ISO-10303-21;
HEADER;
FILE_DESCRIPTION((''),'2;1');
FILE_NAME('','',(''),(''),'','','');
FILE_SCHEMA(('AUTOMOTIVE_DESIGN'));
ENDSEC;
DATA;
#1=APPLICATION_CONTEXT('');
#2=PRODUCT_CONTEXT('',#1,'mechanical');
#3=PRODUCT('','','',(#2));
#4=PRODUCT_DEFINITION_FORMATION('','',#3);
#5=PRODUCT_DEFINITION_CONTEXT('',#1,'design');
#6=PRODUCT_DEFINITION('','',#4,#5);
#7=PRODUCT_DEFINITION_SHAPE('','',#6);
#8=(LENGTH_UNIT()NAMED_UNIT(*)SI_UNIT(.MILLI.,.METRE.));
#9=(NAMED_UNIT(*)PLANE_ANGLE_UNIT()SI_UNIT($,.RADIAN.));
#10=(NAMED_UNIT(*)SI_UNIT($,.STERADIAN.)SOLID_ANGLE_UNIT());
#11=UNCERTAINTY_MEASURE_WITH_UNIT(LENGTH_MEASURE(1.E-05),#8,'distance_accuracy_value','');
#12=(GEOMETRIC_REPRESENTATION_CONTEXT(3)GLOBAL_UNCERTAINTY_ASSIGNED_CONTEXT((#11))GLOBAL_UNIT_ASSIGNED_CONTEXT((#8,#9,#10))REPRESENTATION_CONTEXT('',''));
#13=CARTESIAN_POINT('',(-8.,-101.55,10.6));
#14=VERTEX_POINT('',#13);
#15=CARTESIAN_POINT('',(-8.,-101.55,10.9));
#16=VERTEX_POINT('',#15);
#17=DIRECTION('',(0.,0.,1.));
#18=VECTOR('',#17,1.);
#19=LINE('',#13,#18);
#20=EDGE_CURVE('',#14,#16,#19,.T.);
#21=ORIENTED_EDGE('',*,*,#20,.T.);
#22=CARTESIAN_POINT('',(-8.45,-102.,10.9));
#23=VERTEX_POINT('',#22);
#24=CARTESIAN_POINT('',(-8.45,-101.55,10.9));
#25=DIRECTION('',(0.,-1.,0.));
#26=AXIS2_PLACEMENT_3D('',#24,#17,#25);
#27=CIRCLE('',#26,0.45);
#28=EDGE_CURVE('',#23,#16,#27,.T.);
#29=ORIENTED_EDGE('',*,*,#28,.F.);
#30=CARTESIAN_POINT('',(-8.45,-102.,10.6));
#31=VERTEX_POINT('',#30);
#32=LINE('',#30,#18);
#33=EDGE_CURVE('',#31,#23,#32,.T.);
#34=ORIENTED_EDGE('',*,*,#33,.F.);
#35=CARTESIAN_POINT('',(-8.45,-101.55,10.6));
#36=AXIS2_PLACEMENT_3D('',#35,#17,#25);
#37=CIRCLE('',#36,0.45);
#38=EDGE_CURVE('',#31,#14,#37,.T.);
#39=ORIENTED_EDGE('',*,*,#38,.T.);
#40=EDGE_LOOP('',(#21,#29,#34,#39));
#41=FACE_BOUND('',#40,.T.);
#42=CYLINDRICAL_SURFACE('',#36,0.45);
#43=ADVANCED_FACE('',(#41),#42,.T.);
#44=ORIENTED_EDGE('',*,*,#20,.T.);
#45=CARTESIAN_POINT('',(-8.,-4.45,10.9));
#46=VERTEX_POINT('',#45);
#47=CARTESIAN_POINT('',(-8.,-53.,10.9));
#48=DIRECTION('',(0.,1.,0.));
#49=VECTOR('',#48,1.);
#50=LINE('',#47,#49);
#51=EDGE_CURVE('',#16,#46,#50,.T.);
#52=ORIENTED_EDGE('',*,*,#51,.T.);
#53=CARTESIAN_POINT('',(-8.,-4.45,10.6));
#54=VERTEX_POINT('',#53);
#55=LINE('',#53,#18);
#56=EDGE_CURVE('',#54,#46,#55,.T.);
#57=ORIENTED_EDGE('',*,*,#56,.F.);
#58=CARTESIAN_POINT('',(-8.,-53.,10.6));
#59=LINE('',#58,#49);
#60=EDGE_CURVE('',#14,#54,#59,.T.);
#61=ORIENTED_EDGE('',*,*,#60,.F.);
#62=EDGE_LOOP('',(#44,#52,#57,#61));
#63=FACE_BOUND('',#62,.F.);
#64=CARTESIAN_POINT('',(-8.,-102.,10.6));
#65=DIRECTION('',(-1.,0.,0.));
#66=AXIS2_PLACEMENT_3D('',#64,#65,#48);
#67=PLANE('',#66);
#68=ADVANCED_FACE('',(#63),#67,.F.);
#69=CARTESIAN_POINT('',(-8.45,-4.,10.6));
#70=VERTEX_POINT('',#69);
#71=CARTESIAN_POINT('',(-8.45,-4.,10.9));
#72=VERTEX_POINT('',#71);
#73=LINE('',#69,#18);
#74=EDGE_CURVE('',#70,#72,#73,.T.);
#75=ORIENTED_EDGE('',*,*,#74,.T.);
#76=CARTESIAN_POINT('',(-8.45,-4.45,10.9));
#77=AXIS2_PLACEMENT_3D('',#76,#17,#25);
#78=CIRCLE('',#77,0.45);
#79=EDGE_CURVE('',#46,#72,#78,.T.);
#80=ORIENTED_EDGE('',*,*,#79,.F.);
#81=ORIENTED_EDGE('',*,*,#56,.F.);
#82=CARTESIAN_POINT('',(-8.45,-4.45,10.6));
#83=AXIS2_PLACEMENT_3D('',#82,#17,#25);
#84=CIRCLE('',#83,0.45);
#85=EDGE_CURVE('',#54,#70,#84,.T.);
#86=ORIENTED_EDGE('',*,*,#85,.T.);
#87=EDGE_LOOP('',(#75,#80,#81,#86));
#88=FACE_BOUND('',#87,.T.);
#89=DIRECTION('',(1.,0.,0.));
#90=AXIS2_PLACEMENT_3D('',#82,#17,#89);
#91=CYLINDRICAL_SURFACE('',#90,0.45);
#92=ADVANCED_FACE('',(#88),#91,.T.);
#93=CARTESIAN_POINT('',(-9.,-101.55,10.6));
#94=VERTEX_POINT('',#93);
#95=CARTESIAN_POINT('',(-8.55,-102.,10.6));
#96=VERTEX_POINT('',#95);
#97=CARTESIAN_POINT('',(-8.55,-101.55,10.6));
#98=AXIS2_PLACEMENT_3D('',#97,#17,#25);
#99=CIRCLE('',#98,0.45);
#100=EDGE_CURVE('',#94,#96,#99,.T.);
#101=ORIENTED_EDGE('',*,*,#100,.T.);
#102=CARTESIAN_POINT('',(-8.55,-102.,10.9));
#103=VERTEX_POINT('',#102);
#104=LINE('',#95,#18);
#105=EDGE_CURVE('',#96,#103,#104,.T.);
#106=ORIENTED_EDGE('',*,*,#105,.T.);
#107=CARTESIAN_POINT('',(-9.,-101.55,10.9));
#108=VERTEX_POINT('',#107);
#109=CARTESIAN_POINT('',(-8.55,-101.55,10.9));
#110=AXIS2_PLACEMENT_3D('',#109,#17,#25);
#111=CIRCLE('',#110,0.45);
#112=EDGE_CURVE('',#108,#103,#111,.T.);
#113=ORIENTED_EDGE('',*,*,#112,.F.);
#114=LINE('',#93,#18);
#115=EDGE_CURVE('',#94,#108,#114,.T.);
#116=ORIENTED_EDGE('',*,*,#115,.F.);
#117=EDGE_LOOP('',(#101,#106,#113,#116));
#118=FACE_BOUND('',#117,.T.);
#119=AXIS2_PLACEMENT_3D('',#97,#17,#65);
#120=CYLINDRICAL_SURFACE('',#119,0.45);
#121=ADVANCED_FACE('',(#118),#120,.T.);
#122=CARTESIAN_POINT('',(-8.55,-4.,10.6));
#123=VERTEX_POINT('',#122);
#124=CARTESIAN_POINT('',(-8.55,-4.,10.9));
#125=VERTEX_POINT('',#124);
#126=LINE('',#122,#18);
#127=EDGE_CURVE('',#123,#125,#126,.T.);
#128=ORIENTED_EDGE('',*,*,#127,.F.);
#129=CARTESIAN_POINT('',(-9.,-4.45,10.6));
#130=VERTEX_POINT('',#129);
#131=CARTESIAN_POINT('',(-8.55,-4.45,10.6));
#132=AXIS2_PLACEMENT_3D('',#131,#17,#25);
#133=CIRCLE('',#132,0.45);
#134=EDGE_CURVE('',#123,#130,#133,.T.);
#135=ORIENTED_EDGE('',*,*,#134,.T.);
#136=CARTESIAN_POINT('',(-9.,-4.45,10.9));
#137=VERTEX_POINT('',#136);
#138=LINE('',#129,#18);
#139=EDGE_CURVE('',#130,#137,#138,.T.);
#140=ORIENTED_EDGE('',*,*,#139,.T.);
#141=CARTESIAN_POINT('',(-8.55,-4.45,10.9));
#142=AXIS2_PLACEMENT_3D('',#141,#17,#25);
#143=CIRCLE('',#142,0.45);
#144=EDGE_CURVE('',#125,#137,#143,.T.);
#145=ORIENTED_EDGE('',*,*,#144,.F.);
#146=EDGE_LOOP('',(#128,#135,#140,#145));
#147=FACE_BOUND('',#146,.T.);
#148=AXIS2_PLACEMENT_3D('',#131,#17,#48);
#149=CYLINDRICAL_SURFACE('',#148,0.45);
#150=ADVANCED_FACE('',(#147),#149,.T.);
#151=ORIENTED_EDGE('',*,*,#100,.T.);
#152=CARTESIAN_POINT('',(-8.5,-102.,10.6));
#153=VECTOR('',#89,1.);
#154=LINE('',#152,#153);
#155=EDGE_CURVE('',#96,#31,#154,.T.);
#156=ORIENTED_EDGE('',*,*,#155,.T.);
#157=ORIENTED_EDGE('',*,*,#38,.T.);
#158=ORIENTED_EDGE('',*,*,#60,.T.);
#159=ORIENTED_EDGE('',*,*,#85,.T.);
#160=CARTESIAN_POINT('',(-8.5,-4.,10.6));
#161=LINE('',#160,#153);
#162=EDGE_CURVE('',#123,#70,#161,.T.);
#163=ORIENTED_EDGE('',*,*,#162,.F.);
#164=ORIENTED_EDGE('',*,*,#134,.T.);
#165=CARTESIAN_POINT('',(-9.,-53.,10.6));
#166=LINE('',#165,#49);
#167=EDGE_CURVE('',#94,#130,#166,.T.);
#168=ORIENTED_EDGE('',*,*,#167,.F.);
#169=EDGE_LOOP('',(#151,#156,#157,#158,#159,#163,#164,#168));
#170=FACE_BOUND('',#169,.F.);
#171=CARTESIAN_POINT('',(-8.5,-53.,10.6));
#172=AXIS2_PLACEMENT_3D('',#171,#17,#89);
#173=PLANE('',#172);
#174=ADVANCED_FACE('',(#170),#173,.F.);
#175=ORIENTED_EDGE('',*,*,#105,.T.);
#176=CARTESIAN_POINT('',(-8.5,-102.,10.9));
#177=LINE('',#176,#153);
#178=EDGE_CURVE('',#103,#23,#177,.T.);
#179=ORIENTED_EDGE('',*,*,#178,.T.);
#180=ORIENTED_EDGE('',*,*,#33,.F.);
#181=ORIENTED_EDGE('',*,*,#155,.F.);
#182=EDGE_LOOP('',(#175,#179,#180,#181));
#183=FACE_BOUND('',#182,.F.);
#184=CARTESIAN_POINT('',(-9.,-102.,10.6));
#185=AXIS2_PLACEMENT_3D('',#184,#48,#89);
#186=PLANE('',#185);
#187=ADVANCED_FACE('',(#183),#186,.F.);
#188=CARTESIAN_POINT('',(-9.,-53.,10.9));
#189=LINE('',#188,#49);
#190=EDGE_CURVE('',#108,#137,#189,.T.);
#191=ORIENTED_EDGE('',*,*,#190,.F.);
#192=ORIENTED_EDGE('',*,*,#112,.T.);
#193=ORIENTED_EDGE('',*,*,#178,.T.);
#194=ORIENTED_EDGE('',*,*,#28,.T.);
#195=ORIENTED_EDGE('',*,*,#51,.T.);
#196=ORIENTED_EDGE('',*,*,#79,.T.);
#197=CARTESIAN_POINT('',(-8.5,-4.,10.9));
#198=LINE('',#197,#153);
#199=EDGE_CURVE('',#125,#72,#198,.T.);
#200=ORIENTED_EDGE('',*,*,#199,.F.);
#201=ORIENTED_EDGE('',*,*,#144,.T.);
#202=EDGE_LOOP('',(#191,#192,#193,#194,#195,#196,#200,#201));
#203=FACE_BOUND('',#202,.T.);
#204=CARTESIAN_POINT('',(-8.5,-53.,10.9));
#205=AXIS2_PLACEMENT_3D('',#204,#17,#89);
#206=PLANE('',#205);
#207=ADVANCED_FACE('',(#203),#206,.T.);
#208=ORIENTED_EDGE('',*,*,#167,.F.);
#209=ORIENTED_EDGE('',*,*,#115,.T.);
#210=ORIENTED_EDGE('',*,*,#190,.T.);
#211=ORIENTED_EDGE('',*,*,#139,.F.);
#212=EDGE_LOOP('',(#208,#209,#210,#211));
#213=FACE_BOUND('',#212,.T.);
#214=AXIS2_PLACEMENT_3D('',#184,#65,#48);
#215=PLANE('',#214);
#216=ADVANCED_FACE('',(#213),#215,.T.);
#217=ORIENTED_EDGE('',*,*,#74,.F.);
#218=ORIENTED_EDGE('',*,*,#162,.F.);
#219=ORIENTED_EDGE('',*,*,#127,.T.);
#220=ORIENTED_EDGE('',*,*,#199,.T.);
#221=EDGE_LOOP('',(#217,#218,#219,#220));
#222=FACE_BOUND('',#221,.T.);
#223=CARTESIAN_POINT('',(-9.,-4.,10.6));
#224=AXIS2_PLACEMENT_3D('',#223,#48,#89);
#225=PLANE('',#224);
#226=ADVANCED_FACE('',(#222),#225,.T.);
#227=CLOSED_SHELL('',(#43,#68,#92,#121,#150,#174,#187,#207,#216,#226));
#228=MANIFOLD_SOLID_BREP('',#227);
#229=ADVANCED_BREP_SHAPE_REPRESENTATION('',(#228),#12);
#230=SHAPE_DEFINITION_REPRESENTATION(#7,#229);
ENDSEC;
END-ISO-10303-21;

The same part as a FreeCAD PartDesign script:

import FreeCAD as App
import Part
import Sketcher

V = App.Vector


def edges_at(feature, points):
    """Names of the edges that pass closest to the given points."""
    edges = feature.Shape.Edges
    near = lambda p: min(range(len(edges)), key=lambda i: edges[i].distToShape(Part.Vertex(*p))[0])
    return sorted({f"Edge{near(p) + 1}" for p in points})

doc = App.newDocument("Part")
body = doc.addObject("PartDesign::Body", "Body")

# Sketch on XY plane
sketch1 = body.newObject("Sketcher::SketchObject", "Sketch")
sketch1.AttachmentSupport = (doc.getObject("XY_Plane"), [""])
sketch1.MapMode = "FlatFace"
sketch1.AttachmentOffset = App.Placement(V(0, 0, 10.6), App.Rotation())
sketch1.addGeometry([
    Part.LineSegment(V(-9, -4, 0), V(-9, -102, 0)),
    Part.LineSegment(V(-9, -102, 0), V(-8, -102, 0)),
    Part.LineSegment(V(-8, -102, 0), V(-8, -4, 0)),
    Part.LineSegment(V(-8, -4, 0), V(-9, -4, 0)),
], False)
sketch1.addConstraint([
    Sketcher.Constraint("Coincident", 0, 2, 1, 1),
    Sketcher.Constraint("Coincident", 1, 2, 2, 1),
    Sketcher.Constraint("Coincident", 2, 2, 3, 1),
    Sketcher.Constraint("Coincident", 3, 2, 0, 1),
    Sketcher.Constraint("Vertical", 0),
    Sketcher.Constraint("Horizontal", 1),
    Sketcher.Constraint("Vertical", 2),
    Sketcher.Constraint("Horizontal", 3),
    Sketcher.Constraint("DistanceX", 1, 1, 1, 2, 1.0),
    Sketcher.Constraint("DistanceY", 0, 2, 0, 1, 98.0),
    Sketcher.Constraint("DistanceX", 0, 2, -1, 1, 9.0),
    Sketcher.Constraint("DistanceY", 0, 2, -1, 1, 102.0),
])
pad1 = body.newObject("PartDesign::Pad", "Pad")
pad1.Profile = sketch1
pad1.Length = 0.3
doc.recompute()

fillet = body.newObject("PartDesign::Fillet", "Fillet")
fillet.Base = (pad1, edges_at(pad1, [(-9, -102, 10.75)]))
fillet.Radius = 0.45
doc.recompute()

fillet2 = body.newObject("PartDesign::Fillet", "Fillet001")
fillet2.Base = (fillet, edges_at(fillet, [(-8, -102, 10.75)]))
fillet2.Radius = 0.45
doc.recompute()

fillet3 = body.newObject("PartDesign::Fillet", "Fillet002")
fillet3.Base = (fillet2, edges_at(fillet2, [(-8, -4, 10.75)]))
fillet3.Radius = 0.45
doc.recompute()

fillet4 = body.newObject("PartDesign::Fillet", "Fillet003")
fillet4.Base = (fillet3, edges_at(fillet3, [(-9, -4, 10.75)]))
fillet4.Radius = 0.45

doc.recompute()
